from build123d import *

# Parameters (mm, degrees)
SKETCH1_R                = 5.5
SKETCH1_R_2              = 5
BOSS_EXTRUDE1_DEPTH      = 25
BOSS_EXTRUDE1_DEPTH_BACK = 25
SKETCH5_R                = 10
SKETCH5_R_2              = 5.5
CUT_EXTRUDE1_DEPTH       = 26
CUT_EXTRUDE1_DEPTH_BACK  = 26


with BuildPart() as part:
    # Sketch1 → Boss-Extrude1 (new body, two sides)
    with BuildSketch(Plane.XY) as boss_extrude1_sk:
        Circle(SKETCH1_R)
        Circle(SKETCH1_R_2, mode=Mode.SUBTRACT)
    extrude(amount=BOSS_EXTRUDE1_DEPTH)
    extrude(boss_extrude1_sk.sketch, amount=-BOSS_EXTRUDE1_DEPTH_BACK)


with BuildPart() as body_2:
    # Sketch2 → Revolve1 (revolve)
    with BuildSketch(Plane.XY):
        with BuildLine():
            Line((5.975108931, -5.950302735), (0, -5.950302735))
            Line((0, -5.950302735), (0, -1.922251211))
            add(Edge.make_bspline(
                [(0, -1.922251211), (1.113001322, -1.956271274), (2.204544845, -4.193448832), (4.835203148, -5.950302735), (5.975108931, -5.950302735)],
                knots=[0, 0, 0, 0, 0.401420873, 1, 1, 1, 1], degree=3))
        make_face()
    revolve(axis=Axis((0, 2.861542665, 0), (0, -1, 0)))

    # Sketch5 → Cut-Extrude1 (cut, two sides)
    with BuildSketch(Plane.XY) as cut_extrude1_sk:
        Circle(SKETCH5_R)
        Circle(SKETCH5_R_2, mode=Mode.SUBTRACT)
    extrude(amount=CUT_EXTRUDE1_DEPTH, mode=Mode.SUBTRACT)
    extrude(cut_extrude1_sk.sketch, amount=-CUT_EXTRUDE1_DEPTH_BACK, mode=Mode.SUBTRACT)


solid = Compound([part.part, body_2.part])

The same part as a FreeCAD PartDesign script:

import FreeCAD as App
import Part
import Sketcher

V = App.Vector

doc = App.newDocument("Part")
body = doc.addObject("PartDesign::Body", "Body")

sketch1 = doc.addObject("Sketcher::SketchObject", "Sketch")
body.addObject(sketch1)
sketch1.AttachmentSupport = (doc.XY_Plane, [""])
sketch1.MapMode = "FlatFace"
sketch1.addGeometry([
    Part.Circle(V(0, 0, 0), V(0, 0, 1), 6),
    Part.Circle(V(0, 0, 0), V(0, 0, 1), 5),
], False)
sketch1.addConstraint([
    Sketcher.Constraint("Coincident", 0, 3, -1, 1),
    Sketcher.Constraint("Coincident", 1, 3, -1, 1),
    Sketcher.Constraint("Diameter", 0, 11.0),
    Sketcher.Constraint("Diameter", 1, 10.0),
])
pad1 = doc.addObject("PartDesign::Pad", "Pad")
body.addObject(pad1)
pad1.Profile = sketch1
pad1.Type = "TwoLengths"
pad1.Length = 25
pad1.Length2 = 25
body2 = doc.addObject("PartDesign::Body", "Body001")

sketch2 = doc.addObject("Sketcher::SketchObject", "Sketch001")
body2.addObject(sketch2)
sketch2.AttachmentSupport = (doc.getObject("XY_Plane001"), [""])
sketch2.MapMode = "FlatFace"
sketch2.addGeometry([
    Part.LineSegment(V(0, -5.950303, 0), V(5.975109, -5.950303, 0)),
    Part.BSplineCurve([V(0, -1.922251, 0), V(1.113001, -1.956271, 0), V(2.204545, -4.193449, 0), V(4.835203, -5.950303, 0), V(5.975109, -5.950303, 0)], [4, 1, 4], [0, 0.401420873, 1], False, 3, [1, 1, 1, 1, 1], False),
    Part.LineSegment(V(0, -1.922251, 0), V(0, -5.950303, 0)),
], False)
sketch2.addConstraint([
    Sketcher.Constraint("Block", 1),
    Sketcher.Constraint("Coincident", 0, 2, 1, 2),
    Sketcher.Constraint("Coincident", 1, 1, 2, 1),
    Sketcher.Constraint("Coincident", 2, 2, 0, 1),
    Sketcher.Constraint("Horizontal", 0),
    Sketcher.Constraint("Vertical", 2),
])
revolution = doc.addObject("PartDesign::Revolution", "Revolution")
body2.addObject(revolution)
revolution.Profile = sketch2
revolution.ReferenceAxis = (sketch2, ["V_Axis"])
revolution.Angle = 360

sketch3 = doc.addObject("Sketcher::SketchObject", "Sketch002")
body2.addObject(sketch3)
sketch3.AttachmentSupport = (doc.getObject("XY_Plane001"), [""])
sketch3.MapMode = "FlatFace"
sketch3.addGeometry([
    Part.Circle(V(0, 0, 0), V(0, 0, 1), 10),
    Part.Circle(V(0, 0, 0), V(0, 0, 1), 6),
], False)
sketch3.addConstraint([
    Sketcher.Constraint("Coincident", 0, 3, -1, 1),
    Sketcher.Constraint("Coincident", 1, 3, -1, 1),
    Sketcher.Constraint("Diameter", 0, 20.0),
    Sketcher.Constraint("Diameter", 1, 11.0),
])
pocket1 = doc.addObject("PartDesign::Pocket", "Pocket")
body2.addObject(pocket1)
pocket1.Profile = sketch3
pocket1.Type = "ThroughAll"
pocket1.Midplane = True

doc.recompute()
